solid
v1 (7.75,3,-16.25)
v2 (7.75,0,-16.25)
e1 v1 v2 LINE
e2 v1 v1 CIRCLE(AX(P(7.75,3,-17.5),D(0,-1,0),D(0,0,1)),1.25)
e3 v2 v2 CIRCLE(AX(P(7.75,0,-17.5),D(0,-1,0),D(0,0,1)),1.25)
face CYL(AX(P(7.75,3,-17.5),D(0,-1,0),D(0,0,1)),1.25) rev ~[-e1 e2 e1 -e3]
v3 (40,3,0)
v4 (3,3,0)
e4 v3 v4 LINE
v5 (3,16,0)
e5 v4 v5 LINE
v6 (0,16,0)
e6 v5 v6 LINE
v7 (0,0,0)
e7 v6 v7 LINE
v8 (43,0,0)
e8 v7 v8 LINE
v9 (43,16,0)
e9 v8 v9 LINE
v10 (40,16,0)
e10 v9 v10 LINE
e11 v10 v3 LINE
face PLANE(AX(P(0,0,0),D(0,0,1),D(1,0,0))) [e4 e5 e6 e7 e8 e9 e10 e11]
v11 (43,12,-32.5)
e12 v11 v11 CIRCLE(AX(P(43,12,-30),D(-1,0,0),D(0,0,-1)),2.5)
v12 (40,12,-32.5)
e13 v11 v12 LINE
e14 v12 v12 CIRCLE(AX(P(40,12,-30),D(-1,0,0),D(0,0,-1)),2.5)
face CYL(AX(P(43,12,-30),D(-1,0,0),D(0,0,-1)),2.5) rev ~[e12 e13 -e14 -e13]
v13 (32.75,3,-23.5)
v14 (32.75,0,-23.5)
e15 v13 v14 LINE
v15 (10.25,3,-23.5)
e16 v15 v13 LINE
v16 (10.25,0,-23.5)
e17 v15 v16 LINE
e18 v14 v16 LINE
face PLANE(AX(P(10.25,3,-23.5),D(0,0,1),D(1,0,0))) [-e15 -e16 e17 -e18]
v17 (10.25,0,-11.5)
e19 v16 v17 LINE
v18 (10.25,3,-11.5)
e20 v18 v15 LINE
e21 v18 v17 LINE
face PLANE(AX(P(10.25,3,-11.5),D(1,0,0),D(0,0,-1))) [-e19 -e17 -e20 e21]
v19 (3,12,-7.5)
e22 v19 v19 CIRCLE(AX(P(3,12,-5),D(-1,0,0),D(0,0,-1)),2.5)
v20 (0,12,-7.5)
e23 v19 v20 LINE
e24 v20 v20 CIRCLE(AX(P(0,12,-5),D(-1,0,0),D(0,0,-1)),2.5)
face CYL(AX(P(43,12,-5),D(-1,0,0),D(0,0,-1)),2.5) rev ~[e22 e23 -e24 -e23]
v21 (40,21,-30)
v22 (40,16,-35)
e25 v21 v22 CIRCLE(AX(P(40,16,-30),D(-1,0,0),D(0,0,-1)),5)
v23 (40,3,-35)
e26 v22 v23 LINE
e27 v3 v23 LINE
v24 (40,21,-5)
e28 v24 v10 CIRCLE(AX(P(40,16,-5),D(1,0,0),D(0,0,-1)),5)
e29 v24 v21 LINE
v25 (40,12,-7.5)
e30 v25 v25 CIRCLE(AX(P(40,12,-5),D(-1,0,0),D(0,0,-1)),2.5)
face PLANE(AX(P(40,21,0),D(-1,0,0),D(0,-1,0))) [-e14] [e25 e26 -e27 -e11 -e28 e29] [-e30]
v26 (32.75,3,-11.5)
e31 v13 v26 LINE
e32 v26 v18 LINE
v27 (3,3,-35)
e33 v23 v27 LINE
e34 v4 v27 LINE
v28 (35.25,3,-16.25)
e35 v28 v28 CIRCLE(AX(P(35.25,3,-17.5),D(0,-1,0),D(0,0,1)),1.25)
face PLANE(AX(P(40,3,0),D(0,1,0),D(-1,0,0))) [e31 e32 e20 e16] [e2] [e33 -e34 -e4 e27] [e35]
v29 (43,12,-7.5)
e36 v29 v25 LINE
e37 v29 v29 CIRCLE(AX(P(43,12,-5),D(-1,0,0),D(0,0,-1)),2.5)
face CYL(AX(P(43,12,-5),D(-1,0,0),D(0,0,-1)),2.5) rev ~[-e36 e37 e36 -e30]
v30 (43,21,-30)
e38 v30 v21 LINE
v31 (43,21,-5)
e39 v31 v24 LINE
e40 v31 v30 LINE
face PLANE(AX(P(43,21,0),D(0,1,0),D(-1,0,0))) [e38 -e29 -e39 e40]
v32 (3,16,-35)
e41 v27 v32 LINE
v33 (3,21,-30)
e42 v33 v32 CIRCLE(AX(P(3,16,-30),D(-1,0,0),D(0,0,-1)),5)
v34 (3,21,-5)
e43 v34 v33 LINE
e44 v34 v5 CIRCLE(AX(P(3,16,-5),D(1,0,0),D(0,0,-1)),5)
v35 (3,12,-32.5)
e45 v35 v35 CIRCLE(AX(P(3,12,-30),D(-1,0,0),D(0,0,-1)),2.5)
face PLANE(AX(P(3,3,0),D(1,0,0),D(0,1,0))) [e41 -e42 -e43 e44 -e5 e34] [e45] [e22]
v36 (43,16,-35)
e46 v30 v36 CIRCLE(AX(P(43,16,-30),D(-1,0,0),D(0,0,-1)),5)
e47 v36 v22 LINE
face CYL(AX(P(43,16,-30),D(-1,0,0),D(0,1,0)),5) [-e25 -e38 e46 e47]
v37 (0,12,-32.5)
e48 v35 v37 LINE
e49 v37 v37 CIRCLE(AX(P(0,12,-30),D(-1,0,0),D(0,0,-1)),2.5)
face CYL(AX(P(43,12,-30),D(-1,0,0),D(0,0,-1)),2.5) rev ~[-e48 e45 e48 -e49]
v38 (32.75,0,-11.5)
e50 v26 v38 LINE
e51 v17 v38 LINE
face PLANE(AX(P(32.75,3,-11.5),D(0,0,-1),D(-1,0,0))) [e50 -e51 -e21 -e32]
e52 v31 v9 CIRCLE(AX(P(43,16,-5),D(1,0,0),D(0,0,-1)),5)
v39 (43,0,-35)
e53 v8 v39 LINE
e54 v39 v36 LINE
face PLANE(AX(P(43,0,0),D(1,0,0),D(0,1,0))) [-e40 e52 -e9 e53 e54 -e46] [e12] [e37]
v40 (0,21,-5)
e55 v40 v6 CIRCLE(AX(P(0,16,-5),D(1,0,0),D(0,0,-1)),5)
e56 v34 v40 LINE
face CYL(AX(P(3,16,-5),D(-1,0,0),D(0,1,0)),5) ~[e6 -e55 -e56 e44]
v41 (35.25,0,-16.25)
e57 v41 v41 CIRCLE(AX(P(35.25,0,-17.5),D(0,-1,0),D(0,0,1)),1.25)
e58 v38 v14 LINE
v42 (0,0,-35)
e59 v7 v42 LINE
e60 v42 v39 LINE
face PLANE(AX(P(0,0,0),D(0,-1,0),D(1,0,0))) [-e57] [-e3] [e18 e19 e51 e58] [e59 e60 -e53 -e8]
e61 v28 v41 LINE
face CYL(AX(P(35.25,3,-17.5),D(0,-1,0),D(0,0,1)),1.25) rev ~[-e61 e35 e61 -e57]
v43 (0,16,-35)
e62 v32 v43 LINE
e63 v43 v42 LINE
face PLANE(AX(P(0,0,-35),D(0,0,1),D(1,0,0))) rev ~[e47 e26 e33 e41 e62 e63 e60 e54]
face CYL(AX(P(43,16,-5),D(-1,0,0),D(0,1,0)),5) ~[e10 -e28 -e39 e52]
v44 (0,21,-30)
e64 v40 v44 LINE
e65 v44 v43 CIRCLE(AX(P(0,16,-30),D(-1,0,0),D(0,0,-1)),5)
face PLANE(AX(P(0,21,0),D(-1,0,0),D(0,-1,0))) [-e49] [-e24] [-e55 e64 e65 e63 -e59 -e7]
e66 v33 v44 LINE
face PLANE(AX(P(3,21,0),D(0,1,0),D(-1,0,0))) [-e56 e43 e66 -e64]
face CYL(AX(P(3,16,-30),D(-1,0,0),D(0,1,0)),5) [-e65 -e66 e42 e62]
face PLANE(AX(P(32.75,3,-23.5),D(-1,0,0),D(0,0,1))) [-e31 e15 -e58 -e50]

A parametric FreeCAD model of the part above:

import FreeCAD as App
import Part
import Sketcher
Q = App.Units.Quantity


def edges_at(feature, points):
    """Names of the edges that pass closest to the given points."""
    edges = feature.Shape.Edges
    near = lambda p: min(range(len(edges)), key=lambda i: edges[i].distToShape(Part.Vertex(*p))[0])
    return sorted({f"Edge{near(p) + 1}" for p in points})

doc = App.newDocument("Part")
body = doc.addObject("PartDesign::Body", "Body")

# Sketch on XY plane
sketch1 = doc.addObject("Sketcher::SketchObject", "Sketch")
body.addObject(sketch1)
sketch1.AttachmentSupport = (doc.XY_Plane, [""])
sketch1.MapMode = "FlatFace"
sketch1.addGeometry(Part.LineSegment(App.Vector(0, 21, 0), App.Vector(0, 0, 0)), False)
sketch1.addGeometry(Part.LineSegment(App.Vector(0, 0, 0), App.Vector(43, 0, 0)), False)
sketch1.addGeometry(Part.LineSegment(App.Vector(43, 0, 0), App.Vector(43, 21, 0)), False)
sketch1.addGeometry(Part.LineSegment(App.Vector(43, 21, 0), App.Vector(40, 21, 0)), False)
sketch1.addGeometry(Part.LineSegment(App.Vector(40, 21, 0), App.Vector(40, 3, 0)), False)
sketch1.addGeometry(Part.LineSegment(App.Vector(40, 3, 0), App.Vector(3, 3, 0)), False)
sketch1.addGeometry(Part.LineSegment(App.Vector(3, 3, 0), App.Vector(3, 21, 0)), False)
sketch1.addGeometry(Part.LineSegment(App.Vector(3, 21, 0), App.Vector(0, 21, 0)), False)
sketch1.addConstraint(Sketcher.Constraint("Coincident", 0, 2, 1, 1))
sketch1.addConstraint(Sketcher.Constraint("Coincident", 1, 2, 2, 1))
sketch1.addConstraint(Sketcher.Constraint("Coincident", 2, 2, 3, 1))
sketch1.addConstraint(Sketcher.Constraint("Coincident", 3, 2, 4, 1))
sketch1.addConstraint(Sketcher.Constraint("Coincident", 4, 2, 5, 1))
sketch1.addConstraint(Sketcher.Constraint("Coincident", 5, 2, 6, 1))
sketch1.addConstraint(Sketcher.Constraint("Coincident", 6, 2, 7, 1))
sketch1.addConstraint(Sketcher.Constraint("Coincident", 7, 2, 0, 1))
sketch1.addConstraint(Sketcher.Constraint("Vertical", 0))
sketch1.addConstraint(Sketcher.Constraint("Horizontal", 1))
sketch1.addConstraint(Sketcher.Constraint("Vertical", 2))
sketch1.addConstraint(Sketcher.Constraint("Horizontal", 3))
sketch1.addConstraint(Sketcher.Constraint("Vertical", 4))
sketch1.addConstraint(Sketcher.Constraint("Horizontal", 5))
sketch1.addConstraint(Sketcher.Constraint("Vertical", 6))
sketch1.addConstraint(Sketcher.Constraint("Horizontal", 7))
sketch1.addConstraint(Sketcher.Constraint("Coincident", 0, 2, -1, 1))
sketch1.addConstraint(Sketcher.Constraint("Horizontal", 3, 2, 6, 2))
sketch1.addConstraint(Sketcher.Constraint("Equal", 3, 7))
sketch1.addConstraint(Sketcher.Constraint("DistanceX", 1, 1, 1, 2, Q("43 mm")))
sketch1.addConstraint(Sketcher.Constraint("DistanceX", 3, 2, 3, 1, Q("3 mm")))
sketch1.addConstraint(Sketcher.Constraint("DistanceY", 0, 2, 0, 1, Q("21 mm")))
sketch1.addConstraint(Sketcher.Constraint("DistanceY", 4, 2, 4, 1, Q("18 mm")))
pad1 = doc.addObject("PartDesign::Pad", "Pad")
body.addObject(pad1)
pad1.Profile = sketch1
pad1.Length = 35
pad1.Reversed = True
doc.recompute()

fillet = doc.addObject("PartDesign::Fillet", "Fillet")
body.addObject(fillet)
fillet.Base = (pad1, edges_at(pad1, [
    (1.5, 21, 0),
    (1.5, 21, -35),
    (41.5, 21, 0),
    (41.5, 21, -35),
]))
fillet.Radius = 5

# Sketch on YZ plane
sketch2 = doc.addObject("Sketcher::SketchObject", "Sketch001")
body.addObject(sketch2)
sketch2.AttachmentSupport = (doc.YZ_Plane, [""])
sketch2.MapMode = "FlatFace"
sketch2.AttachmentOffset = App.Placement(App.Vector(0, 0, 43), App.Rotation())
sketch2.addGeometry(Part.Circle(App.Vector(12, -5, 0), App.Vector(0, 0, 1), 2.5), False)
sketch2.addGeometry(Part.Circle(App.Vector(12, -30, 0), App.Vector(0, 0, 1), 2.5), False)
sketch2.addConstraint(Sketcher.Constraint("Equal", 0, 1))
sketch2.addConstraint(Sketcher.Constraint("Vertical", 0, 3, 1, 3))
sketch2.addConstraint(Sketcher.Constraint("Diameter", 0, Q("5 mm")))
sketch2.addConstraint(Sketcher.Constraint("DistanceX", -1, 1, 0, 3, Q("12 mm")))
sketch2.addConstraint(Sketcher.Constraint("DistanceY", 0, 3, -1, 1, Q("5 mm")))
sketch2.addConstraint(Sketcher.Constraint("DistanceY", 1, 3, -1, 1, Q("30 mm")))
doc.recompute()
hole = doc.addObject("PartDesign::Hole", "Hole")
body.addObject(hole)
hole.Profile = sketch2
hole.ThreadType = "None"
hole.Diameter = 5
hole.DepthType = "ThroughAll"

# Sketch on XZ plane
sketch3 = doc.addObject("Sketcher::SketchObject", "Sketch002")
body.addObject(sketch3)
sketch3.AttachmentSupport = (doc.XZ_Plane, [""])
sketch3.MapMode = "FlatFace"
sketch3.AttachmentOffset = App.Placement(App.Vector(0, 0, -3), App.Rotation())
sketch3.addGeometry(Part.LineSegment(App.Vector(33, -24, 0), App.Vector(10, -24, 0)), False)
sketch3.addGeometry(Part.LineSegment(App.Vector(10, -24, 0), App.Vector(10, -12, 0)), False)
sketch3.addGeometry(Part.LineSegment(App.Vector(10, -12, 0), App.Vector(33, -12, 0)), False)
sketch3.addGeometry(Part.LineSegment(App.Vector(33, -12, 0), App.Vector(33, -24, 0)), False)
sketch3.addConstraint(Sketcher.Constraint("Coincident", 0, 2, 1, 1))
sketch3.addConstraint(Sketcher.Constraint("Coincident", 1, 2, 2, 1))
sketch3.addConstraint(Sketcher.Constraint("Coincident", 2, 2, 3, 1))
sketch3.addConstraint(Sketcher.Constraint("Coincident", 3, 2, 0, 1))
sketch3.addConstraint(Sketcher.Constraint("Horizontal", 0))
sketch3.addConstraint(Sketcher.Constraint("Vertical", 1))
sketch3.addConstraint(Sketcher.Constraint("Horizontal", 2))
sketch3.addConstraint(Sketcher.Constraint("Vertical", 3))
sketch3.addConstraint(Sketcher.Constraint("DistanceY", 1, 1, 1, 2, Q("12 mm")))
sketch3.addConstraint(Sketcher.Constraint("DistanceX", 0, 2, 0, 1, Q("22.5 mm")))
sketch3.addConstraint(Sketcher.Constraint("DistanceY", 0, 2, -1, 1, Q("23.5 mm")))
sketch3.addConstraint(Sketcher.Constraint("DistanceX", -1, 1, 0, 2, Q("10.25 mm")))
pocket1 = doc.addObject("PartDesign::Pocket", "Pocket")
body.addObject(pocket1)
pocket1.Profile = sketch3
pocket1.Length = 35
pocket1.Reversed = True

# Sketch on XZ plane
sketch4 = doc.addObject("Sketcher::SketchObject", "Sketch003")
body.addObject(sketch4)
sketch4.AttachmentSupport = (doc.XZ_Plane, [""])
sketch4.MapMode = "FlatFace"
sketch4.AttachmentOffset = App.Placement(App.Vector(0, 0, -3), App.Rotation())
sketch4.addGeometry(Part.Circle(App.Vector(7.8, -17.5, 0), App.Vector(0, 0, 1), 1.2), False)
sketch4.addGeometry(Part.Circle(App.Vector(35.2, -17.5, 0), App.Vector(0, 0, 1), 1.2), False)
sketch4.addConstraint(Sketcher.Constraint("Equal", 0, 1))
sketch4.addConstraint(Sketcher.Constraint("Horizontal", 0, 3, 1, 3))
sketch4.addConstraint(Sketcher.Constraint("Diameter", 0, Q("2.5 mm")))
sketch4.addConstraint(Sketcher.Constraint("DistanceY", 0, 3, -1, 1, Q("17.5 mm")))
sketch4.addConstraint(Sketcher.Constraint("DistanceX", 0, 3, 1, 3, Q("27.5 mm")))
sketch4.addConstraint(Sketcher.Constraint("DistanceX", -1, 1, 0, 3, Q("7.75 mm")))
doc.recompute()
hole2 = doc.addObject("PartDesign::Hole", "Hole001")
body.addObject(hole2)
hole2.Profile = sketch4
hole2.ThreadType = "None"
hole2.Diameter = 2.5
hole2.DepthType = "ThroughAll"
hole2.Reversed = True

doc.recompute()
